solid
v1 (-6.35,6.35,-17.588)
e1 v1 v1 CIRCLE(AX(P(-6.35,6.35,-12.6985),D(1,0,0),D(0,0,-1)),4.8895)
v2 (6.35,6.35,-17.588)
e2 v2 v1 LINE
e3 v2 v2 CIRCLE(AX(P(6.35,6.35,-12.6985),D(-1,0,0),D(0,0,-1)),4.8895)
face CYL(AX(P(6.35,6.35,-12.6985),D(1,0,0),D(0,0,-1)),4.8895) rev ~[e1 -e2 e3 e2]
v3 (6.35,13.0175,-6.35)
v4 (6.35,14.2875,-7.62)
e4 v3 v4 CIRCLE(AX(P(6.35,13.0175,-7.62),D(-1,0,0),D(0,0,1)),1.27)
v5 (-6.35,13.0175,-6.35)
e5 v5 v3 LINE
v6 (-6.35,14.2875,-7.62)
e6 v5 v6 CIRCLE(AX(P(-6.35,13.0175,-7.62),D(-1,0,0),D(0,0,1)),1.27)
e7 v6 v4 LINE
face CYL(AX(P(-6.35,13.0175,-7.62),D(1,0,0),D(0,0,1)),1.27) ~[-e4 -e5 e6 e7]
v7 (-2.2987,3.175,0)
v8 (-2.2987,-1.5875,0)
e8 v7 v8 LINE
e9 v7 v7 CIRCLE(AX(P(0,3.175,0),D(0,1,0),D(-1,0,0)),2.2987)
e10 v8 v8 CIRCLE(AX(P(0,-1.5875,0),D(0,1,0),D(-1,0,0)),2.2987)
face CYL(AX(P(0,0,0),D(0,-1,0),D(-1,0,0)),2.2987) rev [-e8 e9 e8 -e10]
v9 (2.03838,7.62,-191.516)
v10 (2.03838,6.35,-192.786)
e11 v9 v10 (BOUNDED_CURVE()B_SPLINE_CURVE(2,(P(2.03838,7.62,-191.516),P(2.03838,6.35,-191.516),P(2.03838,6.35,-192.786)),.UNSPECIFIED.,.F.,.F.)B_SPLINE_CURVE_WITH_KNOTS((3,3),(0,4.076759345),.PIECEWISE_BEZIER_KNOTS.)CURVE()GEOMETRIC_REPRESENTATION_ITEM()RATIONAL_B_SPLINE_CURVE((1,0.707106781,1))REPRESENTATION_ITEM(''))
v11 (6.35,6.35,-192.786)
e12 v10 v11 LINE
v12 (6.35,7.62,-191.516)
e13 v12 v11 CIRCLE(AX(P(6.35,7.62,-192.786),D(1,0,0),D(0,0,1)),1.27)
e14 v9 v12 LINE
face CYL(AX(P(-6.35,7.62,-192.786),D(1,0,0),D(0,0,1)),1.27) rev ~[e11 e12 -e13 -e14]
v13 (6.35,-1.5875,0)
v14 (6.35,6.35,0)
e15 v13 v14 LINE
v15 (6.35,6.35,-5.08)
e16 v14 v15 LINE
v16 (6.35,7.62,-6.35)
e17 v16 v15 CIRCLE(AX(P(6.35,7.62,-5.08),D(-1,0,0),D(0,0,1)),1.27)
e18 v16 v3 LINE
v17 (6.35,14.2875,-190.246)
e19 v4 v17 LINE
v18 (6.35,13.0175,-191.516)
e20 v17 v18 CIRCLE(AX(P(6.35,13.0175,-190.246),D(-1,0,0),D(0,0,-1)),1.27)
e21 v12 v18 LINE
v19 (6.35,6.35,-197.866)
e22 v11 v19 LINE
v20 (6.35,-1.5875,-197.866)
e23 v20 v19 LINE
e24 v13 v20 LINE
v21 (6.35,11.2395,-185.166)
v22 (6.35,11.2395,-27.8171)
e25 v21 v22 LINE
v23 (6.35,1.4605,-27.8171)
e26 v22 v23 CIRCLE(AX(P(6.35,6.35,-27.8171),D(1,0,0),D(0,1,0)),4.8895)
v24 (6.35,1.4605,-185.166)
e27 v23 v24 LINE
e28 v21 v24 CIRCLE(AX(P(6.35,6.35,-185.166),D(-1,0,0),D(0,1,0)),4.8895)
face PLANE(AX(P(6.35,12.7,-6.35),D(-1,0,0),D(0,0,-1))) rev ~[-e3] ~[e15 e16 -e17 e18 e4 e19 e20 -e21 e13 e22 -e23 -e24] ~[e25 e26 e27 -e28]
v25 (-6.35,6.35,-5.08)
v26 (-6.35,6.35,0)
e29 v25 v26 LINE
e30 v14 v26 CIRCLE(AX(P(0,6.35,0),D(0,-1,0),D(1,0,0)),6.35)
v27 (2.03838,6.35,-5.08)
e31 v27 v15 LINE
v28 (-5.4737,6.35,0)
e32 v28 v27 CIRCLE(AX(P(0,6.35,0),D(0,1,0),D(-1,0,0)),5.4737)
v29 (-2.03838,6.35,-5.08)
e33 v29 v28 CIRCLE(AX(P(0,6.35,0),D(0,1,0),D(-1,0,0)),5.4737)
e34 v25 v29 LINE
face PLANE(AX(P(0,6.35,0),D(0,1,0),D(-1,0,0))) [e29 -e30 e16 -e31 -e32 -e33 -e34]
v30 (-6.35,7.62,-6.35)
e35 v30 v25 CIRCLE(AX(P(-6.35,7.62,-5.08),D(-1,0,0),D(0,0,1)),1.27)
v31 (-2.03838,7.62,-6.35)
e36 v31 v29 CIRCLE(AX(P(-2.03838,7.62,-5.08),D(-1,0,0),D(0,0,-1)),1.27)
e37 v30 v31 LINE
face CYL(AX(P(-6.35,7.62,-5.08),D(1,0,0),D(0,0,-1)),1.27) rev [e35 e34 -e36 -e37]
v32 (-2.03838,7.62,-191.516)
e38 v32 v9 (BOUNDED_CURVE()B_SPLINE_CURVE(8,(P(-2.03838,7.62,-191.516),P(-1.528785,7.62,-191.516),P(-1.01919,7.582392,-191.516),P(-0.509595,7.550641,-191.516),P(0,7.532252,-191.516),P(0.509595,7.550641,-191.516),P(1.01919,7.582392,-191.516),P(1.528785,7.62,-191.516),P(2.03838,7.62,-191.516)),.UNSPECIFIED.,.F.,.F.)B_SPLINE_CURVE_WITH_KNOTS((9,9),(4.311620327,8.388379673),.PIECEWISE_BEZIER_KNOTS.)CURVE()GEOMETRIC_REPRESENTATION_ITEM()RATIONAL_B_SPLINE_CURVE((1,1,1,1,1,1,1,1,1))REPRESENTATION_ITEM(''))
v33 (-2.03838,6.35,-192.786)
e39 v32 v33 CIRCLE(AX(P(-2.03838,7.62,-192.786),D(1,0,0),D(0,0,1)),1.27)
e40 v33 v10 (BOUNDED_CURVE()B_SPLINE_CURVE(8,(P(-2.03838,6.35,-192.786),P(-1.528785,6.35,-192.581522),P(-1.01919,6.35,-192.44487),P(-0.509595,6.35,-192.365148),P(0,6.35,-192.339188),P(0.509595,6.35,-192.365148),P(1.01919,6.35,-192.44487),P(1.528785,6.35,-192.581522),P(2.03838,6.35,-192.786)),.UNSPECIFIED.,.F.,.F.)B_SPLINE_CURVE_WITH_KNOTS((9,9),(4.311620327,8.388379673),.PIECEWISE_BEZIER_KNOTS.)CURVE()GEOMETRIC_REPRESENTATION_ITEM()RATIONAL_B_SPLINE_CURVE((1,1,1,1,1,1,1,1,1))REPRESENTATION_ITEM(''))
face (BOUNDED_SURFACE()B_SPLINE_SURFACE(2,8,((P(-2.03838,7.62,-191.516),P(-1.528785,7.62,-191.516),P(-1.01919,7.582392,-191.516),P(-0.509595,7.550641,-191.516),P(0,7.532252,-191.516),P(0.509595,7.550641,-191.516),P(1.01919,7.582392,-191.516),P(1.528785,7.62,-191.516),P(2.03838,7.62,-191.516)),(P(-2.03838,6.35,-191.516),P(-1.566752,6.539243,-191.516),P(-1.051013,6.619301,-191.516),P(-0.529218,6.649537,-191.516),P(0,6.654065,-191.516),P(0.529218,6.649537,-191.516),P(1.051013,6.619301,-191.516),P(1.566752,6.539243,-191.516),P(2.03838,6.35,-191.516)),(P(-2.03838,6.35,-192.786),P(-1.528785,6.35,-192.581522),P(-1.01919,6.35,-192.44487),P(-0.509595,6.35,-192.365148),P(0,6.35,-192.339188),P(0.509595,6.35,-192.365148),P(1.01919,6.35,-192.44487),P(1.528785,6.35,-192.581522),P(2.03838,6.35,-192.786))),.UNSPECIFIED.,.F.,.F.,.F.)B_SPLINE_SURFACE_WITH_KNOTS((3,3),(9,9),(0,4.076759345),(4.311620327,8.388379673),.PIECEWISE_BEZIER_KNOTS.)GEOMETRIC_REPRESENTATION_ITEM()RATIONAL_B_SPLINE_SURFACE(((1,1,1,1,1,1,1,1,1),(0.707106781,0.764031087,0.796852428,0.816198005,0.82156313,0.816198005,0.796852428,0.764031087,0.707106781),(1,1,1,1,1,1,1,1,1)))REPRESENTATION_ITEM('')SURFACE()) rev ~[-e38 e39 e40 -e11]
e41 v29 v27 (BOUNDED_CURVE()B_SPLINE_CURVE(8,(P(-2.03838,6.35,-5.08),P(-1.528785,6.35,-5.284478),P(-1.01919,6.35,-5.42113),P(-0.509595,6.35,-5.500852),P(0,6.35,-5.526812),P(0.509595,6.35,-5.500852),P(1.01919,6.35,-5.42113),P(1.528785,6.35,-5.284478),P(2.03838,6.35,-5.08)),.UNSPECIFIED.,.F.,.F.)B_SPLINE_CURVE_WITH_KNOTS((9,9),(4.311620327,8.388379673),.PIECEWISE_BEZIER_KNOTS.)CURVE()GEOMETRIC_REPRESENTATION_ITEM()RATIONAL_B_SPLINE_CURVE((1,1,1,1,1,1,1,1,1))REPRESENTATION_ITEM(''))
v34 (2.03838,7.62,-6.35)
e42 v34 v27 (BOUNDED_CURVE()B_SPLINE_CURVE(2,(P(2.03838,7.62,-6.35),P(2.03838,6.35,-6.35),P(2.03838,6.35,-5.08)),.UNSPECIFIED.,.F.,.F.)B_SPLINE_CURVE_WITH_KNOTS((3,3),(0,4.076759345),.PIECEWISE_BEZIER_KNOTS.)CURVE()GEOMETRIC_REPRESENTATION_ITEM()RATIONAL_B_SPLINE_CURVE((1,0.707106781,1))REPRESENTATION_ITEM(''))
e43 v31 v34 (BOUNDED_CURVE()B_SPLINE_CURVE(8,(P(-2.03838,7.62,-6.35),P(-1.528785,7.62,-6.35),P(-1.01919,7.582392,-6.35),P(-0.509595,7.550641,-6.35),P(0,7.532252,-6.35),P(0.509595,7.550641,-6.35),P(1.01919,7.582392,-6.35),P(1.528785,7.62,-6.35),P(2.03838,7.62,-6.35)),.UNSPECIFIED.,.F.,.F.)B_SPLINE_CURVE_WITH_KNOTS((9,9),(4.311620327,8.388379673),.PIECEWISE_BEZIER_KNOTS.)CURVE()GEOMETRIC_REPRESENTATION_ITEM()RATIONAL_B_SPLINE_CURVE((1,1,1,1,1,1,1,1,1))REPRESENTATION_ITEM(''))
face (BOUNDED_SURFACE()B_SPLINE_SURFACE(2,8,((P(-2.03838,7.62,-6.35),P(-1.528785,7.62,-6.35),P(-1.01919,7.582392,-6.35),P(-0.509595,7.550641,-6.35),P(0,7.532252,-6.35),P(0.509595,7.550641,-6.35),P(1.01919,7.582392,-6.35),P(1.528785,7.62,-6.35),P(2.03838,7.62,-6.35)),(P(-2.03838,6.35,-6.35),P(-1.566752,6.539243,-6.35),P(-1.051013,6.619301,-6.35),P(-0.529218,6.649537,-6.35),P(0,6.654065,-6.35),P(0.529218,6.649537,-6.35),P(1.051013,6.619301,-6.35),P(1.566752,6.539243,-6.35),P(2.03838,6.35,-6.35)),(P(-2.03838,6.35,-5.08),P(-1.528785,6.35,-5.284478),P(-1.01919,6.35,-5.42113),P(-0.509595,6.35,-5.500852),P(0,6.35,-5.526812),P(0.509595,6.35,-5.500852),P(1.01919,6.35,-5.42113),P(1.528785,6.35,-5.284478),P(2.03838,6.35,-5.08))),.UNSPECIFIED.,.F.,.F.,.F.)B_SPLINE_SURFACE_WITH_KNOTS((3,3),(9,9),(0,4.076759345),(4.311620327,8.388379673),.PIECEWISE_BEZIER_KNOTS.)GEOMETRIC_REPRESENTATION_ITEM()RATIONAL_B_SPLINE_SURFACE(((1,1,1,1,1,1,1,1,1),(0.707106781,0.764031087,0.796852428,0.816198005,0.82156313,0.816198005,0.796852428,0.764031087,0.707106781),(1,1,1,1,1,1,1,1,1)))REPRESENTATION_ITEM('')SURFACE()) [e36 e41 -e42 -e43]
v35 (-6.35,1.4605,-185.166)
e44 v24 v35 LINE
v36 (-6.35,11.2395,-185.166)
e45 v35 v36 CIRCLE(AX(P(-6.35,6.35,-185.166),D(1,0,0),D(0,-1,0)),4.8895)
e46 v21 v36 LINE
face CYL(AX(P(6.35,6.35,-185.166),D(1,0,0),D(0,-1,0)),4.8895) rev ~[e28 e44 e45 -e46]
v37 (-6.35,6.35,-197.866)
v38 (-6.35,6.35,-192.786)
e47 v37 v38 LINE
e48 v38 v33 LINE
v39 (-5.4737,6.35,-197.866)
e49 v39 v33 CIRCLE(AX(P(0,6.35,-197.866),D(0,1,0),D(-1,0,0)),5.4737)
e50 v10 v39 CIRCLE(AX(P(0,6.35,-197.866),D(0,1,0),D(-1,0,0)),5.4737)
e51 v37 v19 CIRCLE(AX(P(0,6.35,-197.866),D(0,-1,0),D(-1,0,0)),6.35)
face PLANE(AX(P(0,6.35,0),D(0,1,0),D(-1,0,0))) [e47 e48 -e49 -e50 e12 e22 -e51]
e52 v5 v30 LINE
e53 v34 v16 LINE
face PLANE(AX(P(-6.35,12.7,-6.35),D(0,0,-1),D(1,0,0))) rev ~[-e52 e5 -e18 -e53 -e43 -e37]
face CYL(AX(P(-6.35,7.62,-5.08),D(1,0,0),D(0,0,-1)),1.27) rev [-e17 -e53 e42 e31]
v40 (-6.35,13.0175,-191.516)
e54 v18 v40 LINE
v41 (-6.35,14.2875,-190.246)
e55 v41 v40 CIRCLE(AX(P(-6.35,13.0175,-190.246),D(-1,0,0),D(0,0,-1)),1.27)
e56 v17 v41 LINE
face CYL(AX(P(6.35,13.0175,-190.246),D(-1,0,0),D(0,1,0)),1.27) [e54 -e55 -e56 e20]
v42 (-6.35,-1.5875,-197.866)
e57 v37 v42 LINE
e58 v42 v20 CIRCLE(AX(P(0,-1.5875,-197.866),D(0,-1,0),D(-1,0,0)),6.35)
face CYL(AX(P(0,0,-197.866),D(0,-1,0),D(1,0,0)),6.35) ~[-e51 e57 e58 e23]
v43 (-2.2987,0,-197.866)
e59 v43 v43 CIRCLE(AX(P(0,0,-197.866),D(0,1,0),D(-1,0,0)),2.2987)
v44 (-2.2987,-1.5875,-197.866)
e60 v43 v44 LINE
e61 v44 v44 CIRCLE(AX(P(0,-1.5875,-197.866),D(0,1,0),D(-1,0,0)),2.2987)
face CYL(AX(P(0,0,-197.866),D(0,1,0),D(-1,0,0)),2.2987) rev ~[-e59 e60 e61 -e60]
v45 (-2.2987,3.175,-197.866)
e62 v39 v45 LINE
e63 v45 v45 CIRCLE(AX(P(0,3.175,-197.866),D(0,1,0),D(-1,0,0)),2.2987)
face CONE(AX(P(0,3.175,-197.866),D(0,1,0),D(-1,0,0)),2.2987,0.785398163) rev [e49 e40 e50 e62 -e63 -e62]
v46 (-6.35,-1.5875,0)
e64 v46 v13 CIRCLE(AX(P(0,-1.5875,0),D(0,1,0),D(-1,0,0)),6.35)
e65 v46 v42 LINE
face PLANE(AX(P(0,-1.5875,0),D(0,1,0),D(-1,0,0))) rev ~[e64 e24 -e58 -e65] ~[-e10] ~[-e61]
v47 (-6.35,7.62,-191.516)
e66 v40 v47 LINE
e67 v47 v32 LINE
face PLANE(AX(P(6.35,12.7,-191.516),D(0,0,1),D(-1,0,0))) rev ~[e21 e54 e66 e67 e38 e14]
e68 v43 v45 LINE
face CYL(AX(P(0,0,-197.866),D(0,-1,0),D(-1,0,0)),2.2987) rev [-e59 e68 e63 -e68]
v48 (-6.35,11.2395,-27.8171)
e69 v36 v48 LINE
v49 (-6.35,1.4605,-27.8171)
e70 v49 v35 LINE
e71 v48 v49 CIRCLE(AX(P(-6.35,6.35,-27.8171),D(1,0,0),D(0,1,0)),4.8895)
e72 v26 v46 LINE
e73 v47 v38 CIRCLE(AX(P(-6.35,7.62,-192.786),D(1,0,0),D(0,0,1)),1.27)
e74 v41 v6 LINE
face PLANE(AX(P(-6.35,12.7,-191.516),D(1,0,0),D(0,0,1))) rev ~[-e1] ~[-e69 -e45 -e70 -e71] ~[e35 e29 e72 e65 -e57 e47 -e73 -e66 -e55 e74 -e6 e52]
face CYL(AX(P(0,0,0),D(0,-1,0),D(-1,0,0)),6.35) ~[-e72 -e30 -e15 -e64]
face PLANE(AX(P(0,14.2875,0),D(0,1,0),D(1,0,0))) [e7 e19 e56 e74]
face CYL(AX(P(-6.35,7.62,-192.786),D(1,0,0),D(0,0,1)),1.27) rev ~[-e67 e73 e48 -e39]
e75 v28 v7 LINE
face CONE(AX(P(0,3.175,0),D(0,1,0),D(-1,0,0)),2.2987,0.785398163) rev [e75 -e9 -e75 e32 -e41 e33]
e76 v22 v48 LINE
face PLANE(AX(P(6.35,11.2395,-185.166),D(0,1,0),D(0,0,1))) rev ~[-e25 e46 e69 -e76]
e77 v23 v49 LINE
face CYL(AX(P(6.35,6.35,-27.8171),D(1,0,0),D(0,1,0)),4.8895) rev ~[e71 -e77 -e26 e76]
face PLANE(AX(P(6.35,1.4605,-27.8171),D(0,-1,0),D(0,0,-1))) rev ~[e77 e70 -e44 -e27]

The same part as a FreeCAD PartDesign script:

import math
import FreeCAD as App
import Part
import Sketcher

V = App.Vector
Q = App.Units.Quantity


def edges_at(feature, points):
    """Names of the edges that pass closest to the given points."""
    edges = feature.Shape.Edges
    near = lambda p: min(range(len(edges)), key=lambda i: edges[i].distToShape(Part.Vertex(*p))[0])
    return sorted({f"Edge{near(p) + 1}" for p in points})


def add_polygon(sketch, points):
    """Adds a closed chain of lines whose ends are joined by coincident constraints."""
    first, n = sketch.GeometryCount, len(points)
    for a, b in zip(points, points[1:] + points[:1]):
        sketch.addGeometry(Part.LineSegment(App.Vector(*a, 0), App.Vector(*b, 0)), False)
    for i in range(n):
        sketch.addConstraint(Sketcher.Constraint("Coincident", first + i, 2, first + (i + 1) % n, 1))

doc = App.newDocument("Part")
body = doc.addObject("PartDesign::Body", "Body")

sketch1 = body.newObject("Sketcher::SketchObject", "Sketch")
sketch1.AttachmentSupport = (doc.getObject("XZ_Plane"), [""])
sketch1.MapMode = "FlatFace"
add_polygon(sketch1, [(-6, -6), (6, -6), (6, -192), (-6, -192)])
sketch1.addConstraint([
    Sketcher.Constraint("Horizontal", 0),
    Sketcher.Constraint("Vertical", 1),
    Sketcher.Constraint("Horizontal", 2),
    Sketcher.Constraint("Vertical", 3),
    Sketcher.Constraint("DistanceX", 0, 1, 0, 2, Q("0.5 in")),
    Sketcher.Constraint("DistanceY", 1, 2, 1, 1, Q("7.29 in")),
    Sketcher.Constraint("DistanceX", -1, 1, 0, 2, Q("0.25 in")),
    Sketcher.Constraint("DistanceY", 0, 2, -1, 1, Q("0.25 in")),
])
pad1 = body.newObject("PartDesign::Pad", "Pad")
pad1.Profile = sketch1
pad1.Length = Q("0.5 in")
pad1.Reversed = True

sketch2 = body.newObject("Sketcher::SketchObject", "Sketch001")
sketch2.AttachmentSupport = (doc.getObject("XZ_Plane"), [""])
sketch2.MapMode = "FlatFace"
sketch2.addGeometry([
    Part.ArcOfCircle(Part.Circle(V(0, 0, 0), V(0, 0, 1), 6.3), math.radians(0), math.radians(180)),
    Part.LineSegment(V(6.3, 0, 0), V(6.3, -6.3, 0)),
    Part.LineSegment(V(6.3, -6.3, 0), V(-6.3, -6.3, 0)),
    Part.LineSegment(V(-6.3, -6.3, 0), V(-6.3, 0, 0)),
    Part.Circle(V(0, 0, 0), V(0, 0, 1), 2.3),
    Part.LineSegment(V(-6.3, -191.5, 0), V(6.3, -191.5, 0)),
    Part.LineSegment(V(6.3, -191.5, 0), V(6.3, -197.9, 0)),
    Part.ArcOfCircle(Part.Circle(V(0, -197.9, 0), V(0, 0, 1), 6.3), math.radians(180), math.radians(360)),
    Part.LineSegment(V(-6.3, -197.9, 0), V(-6.3, -191.5, 0)),
    Part.Circle(V(0, -197.9, 0), V(0, 0, 1), 2.3),
], False)
sketch2.addConstraint([
    Sketcher.Constraint("Tangent", 0, 1, 1, 1),
    Sketcher.Constraint("Coincident", 1, 2, 2, 1),
    Sketcher.Constraint("Coincident", 2, 2, 3, 1),
    Sketcher.Constraint("Tangent", 3, 2, 0, 2),
    Sketcher.Constraint("Coincident", 5, 2, 6, 1),
    Sketcher.Constraint("Tangent", 6, 2, 7, 2),
    Sketcher.Constraint("Tangent", 7, 1, 8, 1),
    Sketcher.Constraint("Coincident", 8, 2, 5, 1),
    Sketcher.Constraint("Vertical", 1),
    Sketcher.Constraint("Horizontal", 2),
    Sketcher.Constraint("Vertical", 3),
    Sketcher.Constraint("Horizontal", 5),
    Sketcher.Constraint("Vertical", 6),
    Sketcher.Constraint("Vertical", 8),
    Sketcher.Constraint("Coincident", 0, 3, -1, 1),
    Sketcher.Constraint("Coincident", 4, 3, -1, 1),
    Sketcher.Constraint("Coincident", 9, 3, 7, 3),
    Sketcher.Constraint("Equal", 0, 7),
    Sketcher.Constraint("Equal", 4, 9),
    Sketcher.Constraint("PointOnObject", 7, 3, -2),
    Sketcher.Constraint("Equal", 3, 6),
    Sketcher.Constraint("Radius", 0, Q("0.25 in")),
    Sketcher.Constraint("Diameter", 4, Q("0.181 in")),
    Sketcher.Constraint("DistanceY", 7, 3, -1, 1, Q("7.79 in")),
    Sketcher.Constraint("DistanceY", 1, 2, 1, 1, Q("0.25 in")),
])
pad2 = body.newObject("PartDesign::Pad", "Pad001")
pad2.Profile = sketch2
pad2.Length = Q("0.25 in")
pad2.Reversed = True
doc.recompute()

chamfer = body.newObject("PartDesign::Chamfer", "Chamfer")
chamfer.Base = (pad2, edges_at(pad2, [(2.299, 6.35, 0), (2.299, 6.35, -197.866)]))
chamfer.Size = Q("0.125 in")

sketch3 = body.newObject("Sketcher::SketchObject", "Sketch002")
sketch3.AttachmentSupport = (doc.getObject("YZ_Plane"), [""])
sketch3.MapMode = "FlatFace"
sketch3.AttachmentOffset = App.Placement(V(0, 0, 0.25 * 25.4), App.Rotation())
sketch3.addGeometry([
    Part.ArcOfCircle(Part.Circle(V(6.3, -185.2, 0), V(0, 0, 1), 4.9), math.radians(180), math.radians(360)),
    Part.LineSegment(V(11.2, -185.2, 0), V(11.2, -27.8, 0)),
    Part.ArcOfCircle(Part.Circle(V(6.3, -27.8, 0), V(0, 0, 1), 4.9), math.radians(0), math.radians(180)),
    Part.LineSegment(V(1.5, -27.8, 0), V(1.5, -185.2, 0)),
    Part.Circle(V(6.3, -12.7, 0), V(0, 0, 1), 4.9),
], False)
sketch3.addConstraint([
    Sketcher.Constraint("Tangent", 0, 2, 1, 1),
    Sketcher.Constraint("Tangent", 1, 2, 2, 1),
    Sketcher.Constraint("Tangent", 2, 2, 3, 1),
    Sketcher.Constraint("Tangent", 3, 2, 0, 1),
    Sketcher.Constraint("Vertical", 1),
    Sketcher.Constraint("Vertical", 3),
    Sketcher.Constraint("Equal", 2, 4),
    Sketcher.Constraint("Vertical", 2, 3, 4, 3),
    Sketcher.Constraint("Diameter", 4, Q("0.385 in")),
    Sketcher.Constraint("DistanceX", -1, 1, 0, 3, Q("0.25 in")),
    Sketcher.Constraint("DistanceY", 0, 3, -1, 1, Q("7.29 in")),
    Sketcher.Constraint("DistanceY", 1, 1, 1, 2, 157.349),
    Sketcher.Constraint("DistanceY", 4, 3, -1, 1, 12.6985),
])
pocket1 = body.newObject("PartDesign::Pocket", "Pocket")
pocket1.Profile = sketch3
pocket1.Length = Q("1.3125 in")

sketch4 = body.newObject("Sketcher::SketchObject", "Sketch003")
sketch4.AttachmentSupport = (doc.getObject("XZ_Plane"), [""])
sketch4.MapMode = "FlatFace"
sketch4.addGeometry([
    Part.LineSegment(V(6.3, 0, 0), V(6.3, -197.9, 0)),
    Part.ArcOfCircle(Part.Circle(V(0, -197.9, 0), V(0, 0, 1), 6.3), math.radians(180), math.radians(360)),
    Part.LineSegment(V(-6.3, -197.9, 0), V(-6.3, 0, 0)),
    Part.ArcOfCircle(Part.Circle(V(0, 0, 0), V(0, 0, 1), 6.3), math.radians(0), math.radians(180)),
    Part.Circle(V(0, 0, 0), V(0, 0, 1), 2.3),
    Part.Circle(V(0, -197.9, 0), V(0, 0, 1), 2.3),
], False)
sketch4.addConstraint([
    Sketcher.Constraint("Tangent", 0, 2, 1, 2),
    Sketcher.Constraint("Tangent", 1, 1, 2, 1),
    Sketcher.Constraint("Tangent", 2, 2, 3, 2),
    Sketcher.Constraint("Tangent", 3, 1, 0, 1),
    Sketcher.Constraint("Vertical", 0),
    Sketcher.Constraint("Vertical", 2),
    Sketcher.Constraint("Coincident", 3, 3, -1, 1),
    Sketcher.Constraint("Coincident", 4, 3, -1, 1),
    Sketcher.Constraint("Coincident", 5, 3, 1, 3),
    Sketcher.Constraint("Equal", 4, 5),
    Sketcher.Constraint("Radius", 1, Q("0.25 in")),
    Sketcher.Constraint("Diameter", 4, Q("0.181 in")),
    Sketcher.Constraint("DistanceY", 0, 2, 0, 1, Q("7.79 in")),
])
pad3 = body.newObject("PartDesign::Pad", "Pad002")
pad3.Profile = sketch4
pad3.Length = Q("0.0625 in")

sketch5 = body.newObject("Sketcher::SketchObject", "Sketch004")
sketch5.AttachmentSupport = (doc.getObject("XZ_Plane"), [""])
sketch5.MapMode = "FlatFace"
sketch5.AttachmentOffset = App.Placement(V(0, 0, -0.5 * 25.4), App.Rotation())
add_polygon(sketch5, [(-6, -6), (6, -6), (6, -192), (-6, -192)])
sketch5.addConstraint([
    Sketcher.Constraint("Horizontal", 0),
    Sketcher.Constraint("Vertical", 1),
    Sketcher.Constraint("Horizontal", 2),
    Sketcher.Constraint("Vertical", 3),
    Sketcher.Constraint("DistanceX", 0, 1, 0, 2, Q("0.5 in")),
    Sketcher.Constraint("DistanceY", 1, 2, 1, 1, Q("7.29 in")),
    Sketcher.Constraint("DistanceX", -1, 1, 0, 2, Q("0.25 in")),
    Sketcher.Constraint("DistanceY", 0, 2, -1, 1, Q("0.25 in")),
])
pad4 = body.newObject("PartDesign::Pad", "Pad003")
pad4.Profile = sketch5
pad4.Length = Q("0.0625 in")
pad4.Reversed = True
doc.recompute()

fillet = body.newObject("PartDesign::Fillet", "Fillet")
fillet.Base = (pad4, edges_at(pad4, [
    (0, 14.287, -191.516),
    (0, 6.35, -191.516),
    (0, 6.35, -6.35),
    (0, 14.287, -6.35),
]))
fillet.Radius = Q("0.05 in")

doc.recompute()
